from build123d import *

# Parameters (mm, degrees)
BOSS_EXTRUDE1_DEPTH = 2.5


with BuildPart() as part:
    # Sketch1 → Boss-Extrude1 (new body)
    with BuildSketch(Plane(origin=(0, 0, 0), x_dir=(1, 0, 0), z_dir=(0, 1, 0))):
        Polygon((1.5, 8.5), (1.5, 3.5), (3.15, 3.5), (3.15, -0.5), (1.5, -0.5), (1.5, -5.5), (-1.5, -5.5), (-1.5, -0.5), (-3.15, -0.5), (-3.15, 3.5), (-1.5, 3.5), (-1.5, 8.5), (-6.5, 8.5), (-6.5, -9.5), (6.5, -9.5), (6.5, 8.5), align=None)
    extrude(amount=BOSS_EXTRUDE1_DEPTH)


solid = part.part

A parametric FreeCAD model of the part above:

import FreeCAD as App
import Part
import Sketcher

V = App.Vector
Q = App.Units.Quantity

doc = App.newDocument("Part")
body = doc.addObject("PartDesign::Body", "Body")

sketch1 = body.newObject("Sketcher::SketchObject", "Sketch")
sketch1.AttachmentSupport = (doc.getObject("XZ_Plane"), [""])
sketch1.MapMode = "FlatFace"
sketch1.addGeometry(Part.LineSegment(V(1.5, -8.5, 0), V(1.5, -3.5, 0)), False)
sketch1.addGeometry(Part.LineSegment(V(1.5, -3.5, 0), V(3.15, -3.5, 0)), False)
sketch1.addGeometry(Part.LineSegment(V(3.15, -3.5, 0), V(3.15, 0.5, 0)), False)
sketch1.addGeometry(Part.LineSegment(V(3.15, 0.5, 0), V(1.5, 0.5, 0)), False)
sketch1.addGeometry(Part.LineSegment(V(1.5, 0.5, 0), V(1.5, 5.5, 0)), False)
sketch1.addGeometry(Part.LineSegment(V(1.5, 5.5, 0), V(-1.5, 5.5, 0)), False)
sketch1.addGeometry(Part.LineSegment(V(-1.5, 5.5, 0), V(-1.5, 0.5, 0)), False)
sketch1.addGeometry(Part.LineSegment(V(-1.5, 0.5, 0), V(-3.15, 0.5, 0)), False)
sketch1.addGeometry(Part.LineSegment(V(-3.15, 0.5, 0), V(-3.15, -3.5, 0)), False)
sketch1.addGeometry(Part.LineSegment(V(-3.15, -3.5, 0), V(-1.5, -3.5, 0)), False)
sketch1.addGeometry(Part.LineSegment(V(-1.5, -3.5, 0), V(-1.5, -8.5, 0)), False)
sketch1.addGeometry(Part.LineSegment(V(-1.5, -8.5, 0), V(-6.5, -8.5, 0)), False)
sketch1.addGeometry(Part.LineSegment(V(-6.5, -8.5, 0), V(-6.5, 9.5, 0)), False)
sketch1.addGeometry(Part.LineSegment(V(-6.5, 9.5, 0), V(6.5, 9.5, 0)), False)
sketch1.addGeometry(Part.LineSegment(V(6.5, 9.5, 0), V(6.5, -8.5, 0)), False)
sketch1.addGeometry(Part.LineSegment(V(6.5, -8.5, 0), V(1.5, -8.5, 0)), False)
sketch1.addConstraint(Sketcher.Constraint("Coincident", 0, 2, 1, 1))
sketch1.addConstraint(Sketcher.Constraint("Coincident", 1, 2, 2, 1))
sketch1.addConstraint(Sketcher.Constraint("Coincident", 2, 2, 3, 1))
sketch1.addConstraint(Sketcher.Constraint("Coincident", 3, 2, 4, 1))
sketch1.addConstraint(Sketcher.Constraint("Coincident", 4, 2, 5, 1))
sketch1.addConstraint(Sketcher.Constraint("Coincident", 5, 2, 6, 1))
sketch1.addConstraint(Sketcher.Constraint("Coincident", 6, 2, 7, 1))
sketch1.addConstraint(Sketcher.Constraint("Coincident", 7, 2, 8, 1))
sketch1.addConstraint(Sketcher.Constraint("Coincident", 8, 2, 9, 1))
sketch1.addConstraint(Sketcher.Constraint("Coincident", 9, 2, 10, 1))
sketch1.addConstraint(Sketcher.Constraint("Coincident", 10, 2, 11, 1))
sketch1.addConstraint(Sketcher.Constraint("Coincident", 11, 2, 12, 1))
sketch1.addConstraint(Sketcher.Constraint("Coincident", 12, 2, 13, 1))
sketch1.addConstraint(Sketcher.Constraint("Coincident", 13, 2, 14, 1))
sketch1.addConstraint(Sketcher.Constraint("Coincident", 14, 2, 15, 1))
sketch1.addConstraint(Sketcher.Constraint("Coincident", 15, 2, 0, 1))
sketch1.addConstraint(Sketcher.Constraint("Vertical", 0))
sketch1.addConstraint(Sketcher.Constraint("Horizontal", 1))
sketch1.addConstraint(Sketcher.Constraint("Vertical", 2))
sketch1.addConstraint(Sketcher.Constraint("Horizontal", 3))
sketch1.addConstraint(Sketcher.Constraint("Vertical", 4))
sketch1.addConstraint(Sketcher.Constraint("Horizontal", 5))
sketch1.addConstraint(Sketcher.Constraint("Vertical", 6))
sketch1.addConstraint(Sketcher.Constraint("Horizontal", 7))
sketch1.addConstraint(Sketcher.Constraint("Vertical", 8))
sketch1.addConstraint(Sketcher.Constraint("Horizontal", 9))
sketch1.addConstraint(Sketcher.Constraint("Vertical", 10))
sketch1.addConstraint(Sketcher.Constraint("Horizontal", 11))
sketch1.addConstraint(Sketcher.Constraint("Vertical", 12))
sketch1.addConstraint(Sketcher.Constraint("Horizontal", 13))
sketch1.addConstraint(Sketcher.Constraint("Vertical", 14))
sketch1.addConstraint(Sketcher.Constraint("Horizontal", 15))
sketch1.addConstraint(Sketcher.Constraint("Symmetric", 3, 2, 6, 2, -2))
sketch1.addConstraint(Sketcher.Constraint("Symmetric", 1, 2, 8, 2, -2))
sketch1.addConstraint(Sketcher.Constraint("Symmetric", 11, 2, 14, 2, -2))
sketch1.addConstraint(Sketcher.Constraint("Vertical", 0, 2, 3, 2))
sketch1.addConstraint(Sketcher.Constraint("Vertical", 6, 2, 9, 2))
sketch1.addConstraint(Sketcher.Constraint("Equal", 15, 0))
sketch1.addConstraint(Sketcher.Constraint("Equal", 0, 4))
sketch1.addConstraint(Sketcher.Constraint("DistanceX", 5, 2, 5, 1, Q("3 mm")))
sketch1.addConstraint(Sketcher.Constraint("DistanceX", 11, 2, 11, 1, Q("5 mm")))
sketch1.addConstraint(Sketcher.Constraint("DistanceY", 2, 1, 2, 2, Q("4 mm")))
sketch1.addConstraint(Sketcher.Constraint("DistanceY", 12, 1, 12, 2, Q("18 mm")))
sketch1.addConstraint(Sketcher.Constraint("DistanceX", 1, 1, 1, 2, Q("1.65 mm")))
sketch1.addConstraint(Sketcher.Constraint("DistanceY", 0, 2, -1, 1, Q("3.5 mm")))
pad1 = body.newObject("PartDesign::Pad", "Pad")
pad1.Profile = sketch1
pad1.Length = 2.5
pad1.Reversed = True

doc.recompute()
